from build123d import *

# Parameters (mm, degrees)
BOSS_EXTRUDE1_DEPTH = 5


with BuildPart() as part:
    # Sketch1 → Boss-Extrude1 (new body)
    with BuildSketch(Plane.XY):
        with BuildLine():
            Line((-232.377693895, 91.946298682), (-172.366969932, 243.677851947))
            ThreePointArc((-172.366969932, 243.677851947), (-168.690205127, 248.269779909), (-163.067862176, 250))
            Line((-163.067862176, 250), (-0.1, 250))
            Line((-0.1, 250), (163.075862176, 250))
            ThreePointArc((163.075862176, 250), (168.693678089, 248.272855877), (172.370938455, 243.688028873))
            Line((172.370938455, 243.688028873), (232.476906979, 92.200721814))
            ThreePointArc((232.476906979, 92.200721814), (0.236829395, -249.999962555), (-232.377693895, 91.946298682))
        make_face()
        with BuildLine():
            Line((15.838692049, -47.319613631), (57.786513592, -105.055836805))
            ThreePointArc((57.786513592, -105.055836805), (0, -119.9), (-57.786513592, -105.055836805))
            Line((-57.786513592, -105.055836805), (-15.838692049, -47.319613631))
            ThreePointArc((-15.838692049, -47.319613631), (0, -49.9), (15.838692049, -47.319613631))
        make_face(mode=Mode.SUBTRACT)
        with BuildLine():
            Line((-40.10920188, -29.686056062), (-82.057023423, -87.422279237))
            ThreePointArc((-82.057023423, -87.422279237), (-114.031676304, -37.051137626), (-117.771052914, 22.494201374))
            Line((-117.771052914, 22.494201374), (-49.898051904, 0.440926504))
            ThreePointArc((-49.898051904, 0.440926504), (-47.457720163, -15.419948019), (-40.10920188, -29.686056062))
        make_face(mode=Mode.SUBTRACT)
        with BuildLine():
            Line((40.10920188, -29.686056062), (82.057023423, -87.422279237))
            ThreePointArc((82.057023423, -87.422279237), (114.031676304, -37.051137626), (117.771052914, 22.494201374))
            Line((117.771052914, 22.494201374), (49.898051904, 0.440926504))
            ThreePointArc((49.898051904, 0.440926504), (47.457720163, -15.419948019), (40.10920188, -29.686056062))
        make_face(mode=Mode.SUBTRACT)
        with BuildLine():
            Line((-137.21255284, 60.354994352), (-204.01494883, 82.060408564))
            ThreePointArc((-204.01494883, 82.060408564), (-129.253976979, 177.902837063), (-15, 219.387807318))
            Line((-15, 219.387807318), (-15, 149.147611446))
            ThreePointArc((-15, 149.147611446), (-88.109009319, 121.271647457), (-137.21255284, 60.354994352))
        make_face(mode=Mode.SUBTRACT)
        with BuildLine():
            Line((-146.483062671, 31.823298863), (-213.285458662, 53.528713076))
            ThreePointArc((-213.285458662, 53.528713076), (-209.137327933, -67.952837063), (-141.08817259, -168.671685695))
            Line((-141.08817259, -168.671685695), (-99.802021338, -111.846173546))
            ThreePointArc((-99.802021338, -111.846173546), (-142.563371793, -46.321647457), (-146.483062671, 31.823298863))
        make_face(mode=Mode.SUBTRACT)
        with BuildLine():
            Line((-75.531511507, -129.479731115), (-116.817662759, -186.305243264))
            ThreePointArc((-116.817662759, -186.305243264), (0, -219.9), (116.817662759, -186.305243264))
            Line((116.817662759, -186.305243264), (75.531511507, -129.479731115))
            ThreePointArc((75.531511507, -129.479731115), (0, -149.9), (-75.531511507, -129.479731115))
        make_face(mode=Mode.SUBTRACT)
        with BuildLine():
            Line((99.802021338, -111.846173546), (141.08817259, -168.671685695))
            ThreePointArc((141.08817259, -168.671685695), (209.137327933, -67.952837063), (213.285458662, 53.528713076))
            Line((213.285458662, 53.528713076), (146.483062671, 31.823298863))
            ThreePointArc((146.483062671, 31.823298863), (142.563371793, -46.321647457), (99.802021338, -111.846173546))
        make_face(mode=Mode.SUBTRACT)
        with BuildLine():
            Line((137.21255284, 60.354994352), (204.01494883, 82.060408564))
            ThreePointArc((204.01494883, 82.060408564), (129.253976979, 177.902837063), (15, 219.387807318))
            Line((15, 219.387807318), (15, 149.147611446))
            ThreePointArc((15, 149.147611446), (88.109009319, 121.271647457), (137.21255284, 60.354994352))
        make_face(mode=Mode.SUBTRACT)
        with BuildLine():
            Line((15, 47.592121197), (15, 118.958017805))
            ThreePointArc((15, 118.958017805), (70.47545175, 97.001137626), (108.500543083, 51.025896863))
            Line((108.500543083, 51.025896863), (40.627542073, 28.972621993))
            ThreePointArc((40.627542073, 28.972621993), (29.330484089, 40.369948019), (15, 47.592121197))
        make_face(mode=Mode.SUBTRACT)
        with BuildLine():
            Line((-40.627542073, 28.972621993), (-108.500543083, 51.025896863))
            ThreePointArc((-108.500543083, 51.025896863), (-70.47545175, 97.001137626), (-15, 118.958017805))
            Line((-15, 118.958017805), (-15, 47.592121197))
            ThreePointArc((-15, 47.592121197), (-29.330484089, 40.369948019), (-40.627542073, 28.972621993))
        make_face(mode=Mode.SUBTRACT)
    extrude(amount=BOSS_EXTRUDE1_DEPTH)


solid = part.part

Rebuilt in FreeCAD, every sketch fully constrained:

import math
import FreeCAD as App
import Part
import Sketcher
Q = App.Units.Quantity

doc = App.newDocument("Part")
body = doc.addObject("PartDesign::Body", "Body")

# Sketch on XY plane
sketch1 = doc.addObject("Sketcher::SketchObject", "Sketch")
body.addObject(sketch1)
sketch1.AttachmentSupport = (doc.XY_Plane, [""])
sketch1.MapMode = "FlatFace"
sketch1.addGeometry(Part.LineSegment(App.Vector(-172, 244, 0), App.Vector(-232, 92, 0)), False)
sketch1.addGeometry(Part.ArcOfCircle(Part.Circle(App.Vector(0, 0, 0), App.Vector(0, 0, 1), 250), math.radians(158), math.radians(382)), False)
sketch1.addGeometry(Part.LineSegment(App.Vector(232, 92, 0), App.Vector(172, 244, 0)), False)
sketch1.addGeometry(Part.ArcOfCircle(Part.Circle(App.Vector(163, 240, 0), App.Vector(0, 0, 1), 10), math.radians(22), math.radians(90)), False)
sketch1.addGeometry(Part.LineSegment(App.Vector(163, 250, 0), App.Vector(-163, 250, 0)), False)
sketch1.addGeometry(Part.ArcOfCircle(Part.Circle(App.Vector(-163, 240, 0), App.Vector(0, 0, 1), 10), math.radians(90), math.radians(158)), False)
sketch1.addGeometry(Part.ArcOfCircle(Part.Circle(App.Vector(0, 0, 0), App.Vector(0, 0, 1), 150), math.radians(-120), math.radians(-60)), False)
sketch1.addGeometry(Part.LineSegment(App.Vector(76, -129, 0), App.Vector(117, -186, 0)), False)
sketch1.addGeometry(Part.ArcOfCircle(Part.Circle(App.Vector(0, 0, 0), App.Vector(0, 0, 1), 220), math.radians(-122), math.radians(-58)), False)
sketch1.addGeometry(Part.LineSegment(App.Vector(-117, -186, 0), App.Vector(-76, -129, 0)), False)
sketch1.addGeometry(Part.ArcOfCircle(Part.Circle(App.Vector(0, 0, 0), App.Vector(0, 0, 1), 150), math.radians(-48), math.radians(12)), False)
sketch1.addGeometry(Part.LineSegment(App.Vector(146, 32, 0), App.Vector(213, 54, 0)), False)
sketch1.addGeometry(Part.ArcOfCircle(Part.Circle(App.Vector(0, 0, 0), App.Vector(0, 0, 1), 220), math.radians(-50), math.radians(14)), False)
sketch1.addGeometry(Part.LineSegment(App.Vector(141, -169, 0), App.Vector(100, -112, 0)), False)
sketch1.addGeometry(Part.LineSegment(App.Vector(16, -47, 0), App.Vector(58, -105, 0)), False)
sketch1.addGeometry(Part.ArcOfCircle(Part.Circle(App.Vector(0, 0, 0), App.Vector(0, 0, 1), 120), math.radians(-119), math.radians(-61)), False)
sketch1.addGeometry(Part.LineSegment(App.Vector(-58, -105, 0), App.Vector(-16, -47, 0)), False)
sketch1.addGeometry(Part.ArcOfCircle(Part.Circle(App.Vector(0, 0, 0), App.Vector(0, 0, 1), 50), math.radians(-109), math.radians(-71)), False)
sketch1.addGeometry(Part.ArcOfCircle(Part.Circle(App.Vector(0, 0, 0), App.Vector(0, 0, 1), 50), math.radians(-37), math.radians(1)), False)
sketch1.addGeometry(Part.LineSegment(App.Vector(50, 0, 0), App.Vector(118, 22, 0)), False)
sketch1.addGeometry(Part.ArcOfCircle(Part.Circle(App.Vector(0, 0, 0), App.Vector(0, 0, 1), 120), math.radians(-47), math.radians(11)), False)
sketch1.addGeometry(Part.LineSegment(App.Vector(82, -87, 0), App.Vector(40, -30, 0)), False)
sketch1.addGeometry(Part.LineSegment(App.Vector(-40, -30, 0), App.Vector(-82, -87, 0)), False)
sketch1.addGeometry(Part.ArcOfCircle(Part.Circle(App.Vector(0, 0, 0), App.Vector(0, 0, 1), 120), math.radians(169), math.radians(227)), False)
sketch1.addGeometry(Part.LineSegment(App.Vector(-118, 22, 0), App.Vector(-50, 0, 0)), False)
sketch1.addGeometry(Part.ArcOfCircle(Part.Circle(App.Vector(0, 0, 0), App.Vector(0, 0, 1), 50), math.radians(179), math.radians(217)), False)
sketch1.addGeometry(Part.ArcOfCircle(Part.Circle(App.Vector(0, 0, 0), App.Vector(0, 0, 1), 150), math.radians(168), math.radians(228)), False)
sketch1.addGeometry(Part.LineSegment(App.Vector(-100, -112, 0), App.Vector(-141, -169, 0)), False)
sketch1.addGeometry(Part.ArcOfCircle(Part.Circle(App.Vector(0, 0, 0), App.Vector(0, 0, 1), 220), math.radians(166), math.radians(230)), False)
sketch1.addGeometry(Part.LineSegment(App.Vector(-213, 54, 0), App.Vector(-146, 32, 0)), False)
sketch1.addGeometry(Part.LineSegment(App.Vector(15, 48, 0), App.Vector(15, 119, 0)), False)
sketch1.addGeometry(Part.ArcOfCircle(Part.Circle(App.Vector(0, 0, 0), App.Vector(0, 0, 1), 120), math.radians(25), math.radians(83)), False)
sketch1.addGeometry(Part.LineSegment(App.Vector(109, 51, 0), App.Vector(41, 29, 0)), False)
sketch1.addGeometry(Part.ArcOfCircle(Part.Circle(App.Vector(0, 0, 0), App.Vector(0, 0, 1), 50), math.radians(35), math.radians(73)), False)
sketch1.addGeometry(Part.ArcOfCircle(Part.Circle(App.Vector(0, 0, 0), App.Vector(0, 0, 1), 150), math.radians(24), math.radians(84)), False)
sketch1.addGeometry(Part.LineSegment(App.Vector(15, 149, 0), App.Vector(15, 219, 0)), False)
sketch1.addGeometry(Part.ArcOfCircle(Part.Circle(App.Vector(0, 0, 0), App.Vector(0, 0, 1), 220), math.radians(22), math.radians(86)), False)
sketch1.addGeometry(Part.LineSegment(App.Vector(204, 82, 0), App.Vector(137, 60, 0)), False)
sketch1.addGeometry(Part.LineSegment(App.Vector(-41, 29, 0), App.Vector(-109, 51, 0)), False)
sketch1.addGeometry(Part.ArcOfCircle(Part.Circle(App.Vector(0, 0, 0), App.Vector(0, 0, 1), 120), math.radians(97), math.radians(155)), False)
sketch1.addGeometry(Part.LineSegment(App.Vector(-15, 119, 0), App.Vector(-15, 48, 0)), False)
sketch1.addGeometry(Part.ArcOfCircle(Part.Circle(App.Vector(0, 0, 0), App.Vector(0, 0, 1), 50), math.radians(107), math.radians(145)), False)
sketch1.addGeometry(Part.LineSegment(App.Vector(-137, 60, 0), App.Vector(-204, 82, 0)), False)
sketch1.addGeometry(Part.ArcOfCircle(Part.Circle(App.Vector(0, 0, 0), App.Vector(0, 0, 1), 220), math.radians(94), math.radians(158)), False)
sketch1.addGeometry(Part.LineSegment(App.Vector(-15, 219, 0), App.Vector(-15, 149, 0)), False)
sketch1.addGeometry(Part.ArcOfCircle(Part.Circle(App.Vector(0, 0, 0), App.Vector(0, 0, 1), 150), math.radians(96), math.radians(156)), False)
sketch1.addConstraint(Sketcher.Constraint("Tangent", 0, 2, 1, 1))
sketch1.addConstraint(Sketcher.Constraint("Tangent", 1, 2, 2, 1))
sketch1.addConstraint(Sketcher.Constraint("Tangent", 2, 2, 3, 1))
sketch1.addConstraint(Sketcher.Constraint("Tangent", 3, 2, 4, 1))
sketch1.addConstraint(Sketcher.Constraint("Tangent", 4, 2, 5, 1))
sketch1.addConstraint(Sketcher.Constraint("Tangent", 5, 2, 0, 1))
sketch1.addConstraint(Sketcher.Constraint("Coincident", 6, 2, 7, 1))
sketch1.addConstraint(Sketcher.Constraint("Coincident", 7, 2, 8, 2))
sketch1.addConstraint(Sketcher.Constraint("Coincident", 8, 1, 9, 1))
sketch1.addConstraint(Sketcher.Constraint("Coincident", 9, 2, 6, 1))
sketch1.addConstraint(Sketcher.Constraint("Coincident", 10, 2, 11, 1))
sketch1.addConstraint(Sketcher.Constraint("Coincident", 11, 2, 12, 2))
sketch1.addConstraint(Sketcher.Constraint("Coincident", 12, 1, 13, 1))
sketch1.addConstraint(Sketcher.Constraint("Coincident", 13, 2, 10, 1))
sketch1.addConstraint(Sketcher.Constraint("Coincident", 14, 2, 15, 2))
sketch1.addConstraint(Sketcher.Constraint("Coincident", 15, 1, 16, 1))
sketch1.addConstraint(Sketcher.Constraint("Coincident", 16, 2, 17, 1))
sketch1.addConstraint(Sketcher.Constraint("Coincident", 17, 2, 14, 1))
sketch1.addConstraint(Sketcher.Constraint("Coincident", 18, 2, 19, 1))
sketch1.addConstraint(Sketcher.Constraint("Coincident", 19, 2, 20, 2))
sketch1.addConstraint(Sketcher.Constraint("Coincident", 20, 1, 21, 1))
sketch1.addConstraint(Sketcher.Constraint("Coincident", 21, 2, 18, 1))
sketch1.addConstraint(Sketcher.Constraint("Coincident", 22, 2, 23, 2))
sketch1.addConstraint(Sketcher.Constraint("Coincident", 23, 1, 24, 1))
sketch1.addConstraint(Sketcher.Constraint("Coincident", 24, 2, 25, 1))
sketch1.addConstraint(Sketcher.Constraint("Coincident", 25, 2, 22, 1))
sketch1.addConstraint(Sketcher.Constraint("Coincident", 26, 2, 27, 1))
sketch1.addConstraint(Sketcher.Constraint("Coincident", 27, 2, 28, 2))
sketch1.addConstraint(Sketcher.Constraint("Coincident", 28, 1, 29, 1))
sketch1.addConstraint(Sketcher.Constraint("Coincident", 29, 2, 26, 1))
sketch1.addConstraint(Sketcher.Constraint("Coincident", 30, 2, 31, 2))
sketch1.addConstraint(Sketcher.Constraint("Coincident", 31, 1, 32, 1))
sketch1.addConstraint(Sketcher.Constraint("Coincident", 32, 2, 33, 1))
sketch1.addConstraint(Sketcher.Constraint("Coincident", 33, 2, 30, 1))
sketch1.addConstraint(Sketcher.Constraint("Coincident", 34, 2, 35, 1))
sketch1.addConstraint(Sketcher.Constraint("Coincident", 35, 2, 36, 2))
sketch1.addConstraint(Sketcher.Constraint("Coincident", 36, 1, 37, 1))
sketch1.addConstraint(Sketcher.Constraint("Coincident", 37, 2, 34, 1))
sketch1.addConstraint(Sketcher.Constraint("Coincident", 38, 2, 39, 2))
sketch1.addConstraint(Sketcher.Constraint("Coincident", 39, 1, 40, 1))
sketch1.addConstraint(Sketcher.Constraint("Coincident", 40, 2, 41, 1))
sketch1.addConstraint(Sketcher.Constraint("Coincident", 41, 2, 38, 1))
sketch1.addConstraint(Sketcher.Constraint("Coincident", 42, 2, 43, 2))
sketch1.addConstraint(Sketcher.Constraint("Coincident", 43, 1, 44, 1))
sketch1.addConstraint(Sketcher.Constraint("Coincident", 44, 2, 45, 1))
sketch1.addConstraint(Sketcher.Constraint("Coincident", 45, 2, 42, 1))
sketch1.addConstraint(Sketcher.Constraint("Horizontal", 4))
sketch1.addConstraint(Sketcher.Constraint("Vertical", 30))
sketch1.addConstraint(Sketcher.Constraint("Vertical", 35))
sketch1.addConstraint(Sketcher.Constraint("Vertical", 40))
sketch1.addConstraint(Sketcher.Constraint("Vertical", 44))
sketch1.addConstraint(Sketcher.Constraint("Coincident", 6, 3, -1, 1))
sketch1.addConstraint(Sketcher.Constraint("Coincident", 8, 3, -1, 1))
sketch1.addConstraint(Sketcher.Constraint("Coincident", 10, 3, -1, 1))
sketch1.addConstraint(Sketcher.Constraint("Coincident", 12, 3, -1, 1))
sketch1.addConstraint(Sketcher.Constraint("Coincident", 15, 3, -1, 1))
sketch1.addConstraint(Sketcher.Constraint("Coincident", 17, 3, -1, 1))
sketch1.addConstraint(Sketcher.Constraint("Coincident", 18, 3, -1, 1))
sketch1.addConstraint(Sketcher.Constraint("Coincident", 20, 3, -1, 1))
sketch1.addConstraint(Sketcher.Constraint("Coincident", 23, 3, -1, 1))
sketch1.addConstraint(Sketcher.Constraint("Coincident", 25, 3, -1, 1))
sketch1.addConstraint(Sketcher.Constraint("Coincident", 26, 3, -1, 1))
sketch1.addConstraint(Sketcher.Constraint("Coincident", 28, 3, -1, 1))
sketch1.addConstraint(Sketcher.Constraint("Coincident", 31, 3, -1, 1))
sketch1.addConstraint(Sketcher.Constraint("Coincident", 33, 3, -1, 1))
sketch1.addConstraint(Sketcher.Constraint("Coincident", 34, 3, -1, 1))
sketch1.addConstraint(Sketcher.Constraint("Coincident", 36, 3, -1, 1))
sketch1.addConstraint(Sketcher.Constraint("Coincident", 39, 3, -1, 1))
sketch1.addConstraint(Sketcher.Constraint("Coincident", 41, 3, -1, 1))
sketch1.addConstraint(Sketcher.Constraint("Coincident", 43, 3, -1, 1))
sketch1.addConstraint(Sketcher.Constraint("Coincident", 45, 3, -1, 1))
sketch1.addConstraint(Sketcher.Constraint("Equal", 3, 5))
sketch1.addConstraint(Sketcher.Constraint("Equal", 6, 10))
sketch1.addConstraint(Sketcher.Constraint("Equal", 8, 12))
sketch1.addConstraint(Sketcher.Constraint("Equal", 17, 18))
sketch1.addConstraint(Sketcher.Constraint("Equal", 15, 20))
sketch1.addConstraint(Sketcher.Constraint("Equal", 20, 23))
sketch1.addConstraint(Sketcher.Constraint("Equal", 18, 25))
sketch1.addConstraint(Sketcher.Constraint("Equal", 10, 26))
sketch1.addConstraint(Sketcher.Constraint("Equal", 12, 28))
sketch1.addConstraint(Sketcher.Constraint("Equal", 23, 31))
sketch1.addConstraint(Sketcher.Constraint("Equal", 25, 33))
sketch1.addConstraint(Sketcher.Constraint("Equal", 26, 34))
sketch1.addConstraint(Sketcher.Constraint("Equal", 28, 36))
sketch1.addConstraint(Sketcher.Constraint("Equal", 31, 39))
sketch1.addConstraint(Sketcher.Constraint("Equal", 33, 41))
sketch1.addConstraint(Sketcher.Constraint("Equal", 36, 43))
sketch1.addConstraint(Sketcher.Constraint("Equal", 34, 45))
sketch1.addConstraint(Sketcher.Constraint("PointOnObject", 1, 3, -1))
sketch1.addConstraint(Sketcher.Constraint("Parallel", 7, 13))
sketch1.addConstraint(Sketcher.Constraint("Parallel", 13, 14))
sketch1.addConstraint(Sketcher.Constraint("Parallel", 9, 16))
sketch1.addConstraint(Sketcher.Constraint("Parallel", 11, 19))
sketch1.addConstraint(Sketcher.Constraint("Parallel", 14, 21))
sketch1.addConstraint(Sketcher.Constraint("Parallel", 16, 22))
sketch1.addConstraint(Sketcher.Constraint("Parallel", 22, 27))
sketch1.addConstraint(Sketcher.Constraint("Parallel", 24, 29))
sketch1.addConstraint(Sketcher.Constraint("Parallel", 19, 32))
sketch1.addConstraint(Sketcher.Constraint("Parallel", 32, 37))
sketch1.addConstraint(Sketcher.Constraint("Parallel", 29, 38))
sketch1.addConstraint(Sketcher.Constraint("Parallel", 38, 42))
sketch1.addConstraint(Sketcher.Constraint("Horizontal", 7, 2, 8, 1))
sketch1.addConstraint(Sketcher.Constraint("Horizontal", 6, 2, 9, 2))
sketch1.addConstraint(Sketcher.Constraint("Horizontal", 14, 2, 15, 1))
sketch1.addConstraint(Sketcher.Constraint("Horizontal", 20, 1, 22, 2))
sketch1.addConstraint(Sketcher.Constraint("Horizontal", 19, 2, 23, 1))
sketch1.addConstraint(Sketcher.Constraint("Horizontal", 18, 2, 24, 2))
sketch1.addConstraint(Sketcher.Constraint("Horizontal", 13, 2, 26, 2))
sketch1.addConstraint(Sketcher.Constraint("Horizontal", 11, 2, 28, 1))
sketch1.addConstraint(Sketcher.Constraint("Horizontal", 31, 1, 38, 2))
sketch1.addConstraint(Sketcher.Constraint("Horizontal", 30, 2, 39, 1))
sketch1.addConstraint(Sketcher.Constraint("Horizontal", 36, 1, 42, 2))
sketch1.addConstraint(Sketcher.Constraint("Horizontal", 35, 2, 43, 1))
sketch1.addConstraint(Sketcher.Constraint("Vertical", 33, 2, 34, 2))
sketch1.addConstraint(Sketcher.Constraint("Equal", 9, 11))
sketch1.addConstraint(Sketcher.Constraint("Equal", 11, 13))
sketch1.addConstraint(Sketcher.Constraint("Equal", 16, 19))
sketch1.addConstraint(Sketcher.Constraint("Equal", 19, 21))
sketch1.addConstraint(Sketcher.Constraint("Equal", 24, 32))
sketch1.addConstraint(Sketcher.Constraint("Equal", 29, 37))
sketch1.addConstraint(Sketcher.Constraint("Radius", 1, Q("250 mm")))
sketch1.addConstraint(Sketcher.Constraint("Radius", 3, Q("10 mm")))
sketch1.addConstraint(Sketcher.Constraint("Radius", 6, Q("149.9 mm")))
sketch1.addConstraint(Sketcher.Constraint("Radius", 8, Q("219.9 mm")))
sketch1.addConstraint(Sketcher.Constraint("Radius", 15, Q("119.9 mm")))
sketch1.addConstraint(Sketcher.Constraint("Radius", 17, Q("49.9 mm")))
sketch1.addConstraint(Sketcher.Constraint("Angle", 7, Q("-54 deg")))
sketch1.addConstraint(Sketcher.Constraint("Angle", 11, Q("18 deg")))
sketch1.addConstraint(Sketcher.Constraint("DistanceY", -1, 1, 3, 3, Q("240 mm")))
sketch1.addConstraint(Sketcher.Constraint("DistanceX", -1, 1, 30, 2, Q("15 mm")))
sketch1.addConstraint(Sketcher.Constraint("DistanceX", -1, 1, 1, 3, Q("0.1 mm")))
sketch1.addConstraint(Sketcher.Constraint("DistanceY", -1, 1, 0, 2, Q("91.946299 mm")))
sketch1.addConstraint(Sketcher.Constraint("DistanceY", -1, 1, 19, 2, Q("22.494201 mm")))
sketch1.addConstraint(Sketcher.Constraint("DistanceY", -1, 1, 29, 2, Q("31.823299 mm")))
sketch1.addConstraint(Sketcher.Constraint("DistanceX", 4, 2, 4, 1, Q("326.143724 mm")))
pad1 = doc.addObject("PartDesign::Pad", "Pad")
body.addObject(pad1)
pad1.Profile = sketch1
pad1.Length = 5

doc.recompute()
